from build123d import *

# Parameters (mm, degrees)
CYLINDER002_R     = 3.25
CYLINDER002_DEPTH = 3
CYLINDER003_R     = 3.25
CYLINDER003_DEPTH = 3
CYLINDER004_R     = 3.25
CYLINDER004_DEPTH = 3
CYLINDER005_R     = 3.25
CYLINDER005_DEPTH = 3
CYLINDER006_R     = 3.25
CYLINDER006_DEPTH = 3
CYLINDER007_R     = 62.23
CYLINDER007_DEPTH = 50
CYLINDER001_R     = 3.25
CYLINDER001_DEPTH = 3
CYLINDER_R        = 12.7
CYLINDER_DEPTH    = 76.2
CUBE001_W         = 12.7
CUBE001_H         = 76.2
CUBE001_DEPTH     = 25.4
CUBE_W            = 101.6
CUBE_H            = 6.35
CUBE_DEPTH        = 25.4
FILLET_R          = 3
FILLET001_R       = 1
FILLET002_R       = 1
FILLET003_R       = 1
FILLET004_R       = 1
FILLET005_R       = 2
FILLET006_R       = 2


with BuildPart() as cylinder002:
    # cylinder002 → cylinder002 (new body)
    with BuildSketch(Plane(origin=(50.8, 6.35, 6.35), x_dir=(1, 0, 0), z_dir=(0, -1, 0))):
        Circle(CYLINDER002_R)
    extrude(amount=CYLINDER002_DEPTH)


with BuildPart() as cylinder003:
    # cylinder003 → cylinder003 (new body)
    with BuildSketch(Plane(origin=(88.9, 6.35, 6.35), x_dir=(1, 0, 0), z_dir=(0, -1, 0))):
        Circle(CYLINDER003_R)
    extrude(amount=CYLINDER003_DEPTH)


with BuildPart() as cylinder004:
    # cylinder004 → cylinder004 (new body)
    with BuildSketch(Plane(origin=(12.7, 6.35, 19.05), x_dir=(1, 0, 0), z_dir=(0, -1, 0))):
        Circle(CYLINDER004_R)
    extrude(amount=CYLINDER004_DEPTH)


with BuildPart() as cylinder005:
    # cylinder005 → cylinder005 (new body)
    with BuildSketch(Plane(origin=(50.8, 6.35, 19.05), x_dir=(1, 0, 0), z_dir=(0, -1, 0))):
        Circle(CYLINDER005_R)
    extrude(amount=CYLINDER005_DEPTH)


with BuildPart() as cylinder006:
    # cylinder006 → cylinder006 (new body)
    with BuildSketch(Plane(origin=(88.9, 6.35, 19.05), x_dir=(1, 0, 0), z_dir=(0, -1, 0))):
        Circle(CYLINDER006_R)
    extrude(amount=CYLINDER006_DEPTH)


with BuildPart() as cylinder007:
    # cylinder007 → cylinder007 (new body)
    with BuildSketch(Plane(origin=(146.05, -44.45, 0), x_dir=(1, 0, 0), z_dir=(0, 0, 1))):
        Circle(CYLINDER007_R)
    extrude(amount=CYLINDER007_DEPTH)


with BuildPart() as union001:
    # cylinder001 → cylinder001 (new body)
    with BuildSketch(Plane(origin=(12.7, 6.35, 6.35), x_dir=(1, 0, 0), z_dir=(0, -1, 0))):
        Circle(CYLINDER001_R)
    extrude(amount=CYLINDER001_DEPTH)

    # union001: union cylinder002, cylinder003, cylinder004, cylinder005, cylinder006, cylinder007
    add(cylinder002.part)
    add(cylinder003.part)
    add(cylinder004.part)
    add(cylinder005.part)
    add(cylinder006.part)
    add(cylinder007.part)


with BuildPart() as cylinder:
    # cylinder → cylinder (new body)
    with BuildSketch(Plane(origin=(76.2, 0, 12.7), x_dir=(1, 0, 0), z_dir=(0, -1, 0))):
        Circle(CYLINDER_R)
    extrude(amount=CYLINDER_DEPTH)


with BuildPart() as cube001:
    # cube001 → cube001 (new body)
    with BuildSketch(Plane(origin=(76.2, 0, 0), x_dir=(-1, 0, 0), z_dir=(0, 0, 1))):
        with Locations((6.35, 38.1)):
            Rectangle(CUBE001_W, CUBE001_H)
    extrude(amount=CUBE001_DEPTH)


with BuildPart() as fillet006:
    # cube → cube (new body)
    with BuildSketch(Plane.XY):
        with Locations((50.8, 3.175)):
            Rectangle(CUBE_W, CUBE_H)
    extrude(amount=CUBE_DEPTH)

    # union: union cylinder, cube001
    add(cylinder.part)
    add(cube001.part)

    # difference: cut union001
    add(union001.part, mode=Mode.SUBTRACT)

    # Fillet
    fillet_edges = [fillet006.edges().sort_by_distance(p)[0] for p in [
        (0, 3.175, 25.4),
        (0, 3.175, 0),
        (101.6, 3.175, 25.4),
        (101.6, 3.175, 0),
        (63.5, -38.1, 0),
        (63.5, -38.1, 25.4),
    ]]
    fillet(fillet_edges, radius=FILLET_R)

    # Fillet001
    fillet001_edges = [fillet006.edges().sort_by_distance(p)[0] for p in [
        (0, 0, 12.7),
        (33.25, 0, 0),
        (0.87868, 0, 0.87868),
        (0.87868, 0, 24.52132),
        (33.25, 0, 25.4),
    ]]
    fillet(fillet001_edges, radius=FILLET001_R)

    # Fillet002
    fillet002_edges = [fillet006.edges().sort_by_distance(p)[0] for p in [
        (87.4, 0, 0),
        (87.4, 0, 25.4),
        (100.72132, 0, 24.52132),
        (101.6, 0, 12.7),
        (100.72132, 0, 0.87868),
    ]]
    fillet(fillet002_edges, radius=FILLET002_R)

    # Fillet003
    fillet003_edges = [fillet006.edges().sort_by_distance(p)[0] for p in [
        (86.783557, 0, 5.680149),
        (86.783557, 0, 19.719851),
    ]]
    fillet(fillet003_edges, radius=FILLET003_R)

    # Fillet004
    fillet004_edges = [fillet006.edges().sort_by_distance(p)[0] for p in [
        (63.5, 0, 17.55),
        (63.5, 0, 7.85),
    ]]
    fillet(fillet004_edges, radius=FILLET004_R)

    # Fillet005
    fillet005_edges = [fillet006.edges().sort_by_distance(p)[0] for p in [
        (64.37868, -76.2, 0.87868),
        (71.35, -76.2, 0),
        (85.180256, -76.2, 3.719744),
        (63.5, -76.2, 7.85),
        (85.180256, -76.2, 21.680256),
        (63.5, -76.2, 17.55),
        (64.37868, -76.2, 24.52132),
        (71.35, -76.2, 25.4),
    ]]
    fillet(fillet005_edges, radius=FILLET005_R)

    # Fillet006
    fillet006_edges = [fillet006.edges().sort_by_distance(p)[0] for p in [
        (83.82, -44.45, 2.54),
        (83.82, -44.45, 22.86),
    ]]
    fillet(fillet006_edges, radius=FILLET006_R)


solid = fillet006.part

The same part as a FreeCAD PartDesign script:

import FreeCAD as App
import Part
import Sketcher
Q = App.Units.Quantity


def edges_at(feature, points):
    """Names of the edges that pass closest to the given points."""
    edges = feature.Shape.Edges
    near = lambda p: min(range(len(edges)), key=lambda i: edges[i].distToShape(Part.Vertex(*p))[0])
    return sorted({f"Edge{near(p) + 1}" for p in points})


def add_polygon(sketch, points):
    """Adds a closed chain of lines whose ends are joined by coincident constraints."""
    first, n = sketch.GeometryCount, len(points)
    for a, b in zip(points, points[1:] + points[:1]):
        sketch.addGeometry(Part.LineSegment(App.Vector(*a, 0), App.Vector(*b, 0)), False)
    for i in range(n):
        sketch.addConstraint(Sketcher.Constraint("Coincident", first + i, 2, first + (i + 1) % n, 1))

doc = App.newDocument("Part")
body = doc.addObject("PartDesign::Body", "Body")

# Sketch on XZ plane
sketch1 = doc.addObject("Sketcher::SketchObject", "Sketch")
body.addObject(sketch1)
sketch1.AttachmentSupport = (doc.XZ_Plane, [""])
sketch1.MapMode = "FlatFace"
sketch1.AttachmentOffset = App.Placement(App.Vector(0, 0, -0.25 * 25.4), App.Rotation())
sketch1.addGeometry(Part.Circle(App.Vector(50.8, 6.3, 0), App.Vector(0, 0, 1), 3.2), False)
sketch1.addConstraint(Sketcher.Constraint("DistanceX", -1, 1, 0, 3, Q("2 in")))
sketch1.addConstraint(Sketcher.Constraint("Diameter", 0, 6.5))
sketch1.addConstraint(Sketcher.Constraint("DistanceY", -1, 1, 0, 3, Q("0.25 in")))
pad1 = doc.addObject("PartDesign::Pad", "Pad")
body.addObject(pad1)
pad1.Profile = sketch1
pad1.Length = 3
body2 = doc.addObject("PartDesign::Body", "Body001")

# Sketch on XZ plane
sketch2 = doc.addObject("Sketcher::SketchObject", "Sketch001")
body2.addObject(sketch2)
sketch2.AttachmentSupport = (doc.getObject("XZ_Plane001"), [""])
sketch2.MapMode = "FlatFace"
sketch2.AttachmentOffset = App.Placement(App.Vector(0, 0, -0.25 * 25.4), App.Rotation())
sketch2.addGeometry(Part.Circle(App.Vector(88.9, 6.3, 0), App.Vector(0, 0, 1), 3.2), False)
sketch2.addConstraint(Sketcher.Constraint("DistanceX", -1, 1, 0, 3, Q("3.5 in")))
sketch2.addConstraint(Sketcher.Constraint("Diameter", 0, 6.5))
sketch2.addConstraint(Sketcher.Constraint("DistanceY", -1, 1, 0, 3, Q("0.25 in")))
pad2 = doc.addObject("PartDesign::Pad", "Pad001")
body2.addObject(pad2)
pad2.Profile = sketch2
pad2.Length = 3
body3 = doc.addObject("PartDesign::Body", "Body002")

# Sketch on XZ plane
sketch3 = doc.addObject("Sketcher::SketchObject", "Sketch002")
body3.addObject(sketch3)
sketch3.AttachmentSupport = (doc.getObject("XZ_Plane002"), [""])
sketch3.MapMode = "FlatFace"
sketch3.AttachmentOffset = App.Placement(App.Vector(0, 0, -0.25 * 25.4), App.Rotation())
sketch3.addGeometry(Part.Circle(App.Vector(12.7, 19.1, 0), App.Vector(0, 0, 1), 3.2), False)
sketch3.addConstraint(Sketcher.Constraint("DistanceX", -1, 1, 0, 3, Q("0.5 in")))
sketch3.addConstraint(Sketcher.Constraint("Diameter", 0, 6.5))
sketch3.addConstraint(Sketcher.Constraint("DistanceY", -1, 1, 0, 3, Q("0.75 in")))
pad3 = doc.addObject("PartDesign::Pad", "Pad002")
body3.addObject(pad3)
pad3.Profile = sketch3
pad3.Length = 3
body4 = doc.addObject("PartDesign::Body", "Body003")

# Sketch on XZ plane
sketch4 = doc.addObject("Sketcher::SketchObject", "Sketch003")
body4.addObject(sketch4)
sketch4.AttachmentSupport = (doc.getObject("XZ_Plane003"), [""])
sketch4.MapMode = "FlatFace"
sketch4.AttachmentOffset = App.Placement(App.Vector(0, 0, -0.25 * 25.4), App.Rotation())
sketch4.addGeometry(Part.Circle(App.Vector(50.8, 19.1, 0), App.Vector(0, 0, 1), 3.2), False)
sketch4.addConstraint(Sketcher.Constraint("DistanceX", -1, 1, 0, 3, Q("2 in")))
sketch4.addConstraint(Sketcher.Constraint("Diameter", 0, 6.5))
sketch4.addConstraint(Sketcher.Constraint("DistanceY", -1, 1, 0, 3, Q("0.75 in")))
pad4 = doc.addObject("PartDesign::Pad", "Pad003")
body4.addObject(pad4)
pad4.Profile = sketch4
pad4.Length = 3
body5 = doc.addObject("PartDesign::Body", "Body004")

# Sketch on XZ plane
sketch5 = doc.addObject("Sketcher::SketchObject", "Sketch004")
body5.addObject(sketch5)
sketch5.AttachmentSupport = (doc.getObject("XZ_Plane004"), [""])
sketch5.MapMode = "FlatFace"
sketch5.AttachmentOffset = App.Placement(App.Vector(0, 0, -0.25 * 25.4), App.Rotation())
sketch5.addGeometry(Part.Circle(App.Vector(88.9, 19.1, 0), App.Vector(0, 0, 1), 3.2), False)
sketch5.addConstraint(Sketcher.Constraint("DistanceX", -1, 1, 0, 3, Q("3.5 in")))
sketch5.addConstraint(Sketcher.Constraint("Diameter", 0, 6.5))
sketch5.addConstraint(Sketcher.Constraint("DistanceY", -1, 1, 0, 3, Q("0.75 in")))
pad5 = doc.addObject("PartDesign::Pad", "Pad004")
body5.addObject(pad5)
pad5.Profile = sketch5
pad5.Length = 3
body6 = doc.addObject("PartDesign::Body", "Body005")

# Sketch on XY plane
sketch6 = doc.addObject("Sketcher::SketchObject", "Sketch005")
body6.addObject(sketch6)
sketch6.AttachmentSupport = (doc.getObject("XY_Plane005"), [""])
sketch6.MapMode = "FlatFace"
sketch6.addGeometry(Part.Circle(App.Vector(146, -44, 0), App.Vector(0, 0, 1), 62), False)
sketch6.addConstraint(Sketcher.Constraint("Diameter", 0, Q("4.9 in")))
sketch6.addConstraint(Sketcher.Constraint("DistanceX", -1, 1, 0, 3, Q("5.75 in")))
sketch6.addConstraint(Sketcher.Constraint("DistanceY", 0, 3, -1, 1, Q("1.75 in")))
pad6 = doc.addObject("PartDesign::Pad", "Pad005")
body6.addObject(pad6)
pad6.Profile = sketch6
pad6.Length = 50
body7 = doc.addObject("PartDesign::Body", "Body006")
body7.AllowCompound = True

# Sketch on XZ plane
sketch7 = doc.addObject("Sketcher::SketchObject", "Sketch006")
body7.addObject(sketch7)
sketch7.AttachmentSupport = (doc.getObject("XZ_Plane006"), [""])
sketch7.MapMode = "FlatFace"
sketch7.AttachmentOffset = App.Placement(App.Vector(0, 0, -0.25 * 25.4), App.Rotation())
sketch7.addGeometry(Part.Circle(App.Vector(12.7, 6.3, 0), App.Vector(0, 0, 1), 3.2), False)
sketch7.addConstraint(Sketcher.Constraint("DistanceX", -1, 1, 0, 3, Q("0.5 in")))
sketch7.addConstraint(Sketcher.Constraint("Diameter", 0, 6.5))
sketch7.addConstraint(Sketcher.Constraint("DistanceY", -1, 1, 0, 3, Q("0.25 in")))
pad7 = doc.addObject("PartDesign::Pad", "Pad006")
body7.addObject(pad7)
pad7.Profile = sketch7
pad7.Length = 3
doc.recompute()

boolean = doc.addObject("PartDesign::Boolean", "Boolean")
body7.addObject(boolean)
boolean.Type = "Fuse"
boolean.addObjects([body])
doc.recompute()

boolean2 = doc.addObject("PartDesign::Boolean", "Boolean001")
body7.addObject(boolean2)
boolean2.Type = "Fuse"
boolean2.addObjects([body2])
doc.recompute()

boolean3 = doc.addObject("PartDesign::Boolean", "Boolean002")
body7.addObject(boolean3)
boolean3.Type = "Fuse"
boolean3.addObjects([body3])
doc.recompute()

boolean4 = doc.addObject("PartDesign::Boolean", "Boolean003")
body7.addObject(boolean4)
boolean4.Type = "Fuse"
boolean4.addObjects([body4])
doc.recompute()

boolean5 = doc.addObject("PartDesign::Boolean", "Boolean004")
body7.addObject(boolean5)
boolean5.Type = "Fuse"
boolean5.addObjects([body5])
doc.recompute()

boolean6 = doc.addObject("PartDesign::Boolean", "Boolean005")
body7.addObject(boolean6)
boolean6.Type = "Fuse"
boolean6.addObjects([body6])
body8 = doc.addObject("PartDesign::Body", "Body007")

# Sketch on XZ plane
sketch8 = doc.addObject("Sketcher::SketchObject", "Sketch007")
body8.addObject(sketch8)
sketch8.AttachmentSupport = (doc.getObject("XZ_Plane007"), [""])
sketch8.MapMode = "FlatFace"
sketch8.addGeometry(Part.Circle(App.Vector(76, 13, 0), App.Vector(0, 0, 1), 13), False)
sketch8.addConstraint(Sketcher.Constraint("Diameter", 0, Q("1 in")))
sketch8.addConstraint(Sketcher.Constraint("DistanceX", -1, 1, 0, 3, Q("3 in")))
sketch8.addConstraint(Sketcher.Constraint("DistanceY", -1, 1, 0, 3, Q("0.5 in")))
pad8 = doc.addObject("PartDesign::Pad", "Pad007")
body8.addObject(pad8)
pad8.Profile = sketch8
pad8.Length = Q("3 in")
body9 = doc.addObject("PartDesign::Body", "Body008")

# Sketch on XY plane
sketch9 = doc.addObject("Sketcher::SketchObject", "Sketch008")
body9.addObject(sketch9)
sketch9.AttachmentSupport = (doc.getObject("XY_Plane008"), [""])
sketch9.MapMode = "FlatFace"
add_polygon(sketch9, [(76, -76), (76, 0), (64, 0), (64, -76)])  # lines 0-3
sketch9.addConstraint(Sketcher.Constraint("Vertical", 0))
sketch9.addConstraint(Sketcher.Constraint("Horizontal", 1))
sketch9.addConstraint(Sketcher.Constraint("Vertical", 2))
sketch9.addConstraint(Sketcher.Constraint("Horizontal", 3))
sketch9.addConstraint(Sketcher.Constraint("PointOnObject", 0, 2, -1))
sketch9.addConstraint(Sketcher.Constraint("DistanceY", 0, 1, 0, 2, Q("3 in")))
sketch9.addConstraint(Sketcher.Constraint("DistanceX", 1, 2, 1, 1, Q("0.5 in")))
sketch9.addConstraint(Sketcher.Constraint("DistanceX", -1, 1, 0, 2, Q("3 in")))
pad9 = doc.addObject("PartDesign::Pad", "Pad008")
body9.addObject(pad9)
pad9.Profile = sketch9
pad9.Length = Q("1 in")
body10 = doc.addObject("PartDesign::Body", "Body009")

# Sketch on XY plane
sketch10 = doc.addObject("Sketcher::SketchObject", "Sketch009")
body10.addObject(sketch10)
sketch10.AttachmentSupport = (doc.getObject("XY_Plane009"), [""])
sketch10.MapMode = "FlatFace"
add_polygon(sketch10, [(0, 6), (0, 0), (102, 0), (102, 6)])  # lines 0-3
sketch10.addConstraint(Sketcher.Constraint("Vertical", 0))
sketch10.addConstraint(Sketcher.Constraint("Horizontal", 1))
sketch10.addConstraint(Sketcher.Constraint("Vertical", 2))
sketch10.addConstraint(Sketcher.Constraint("Horizontal", 3))
sketch10.addConstraint(Sketcher.Constraint("Coincident", 0, 2, -1, 1))
sketch10.addConstraint(Sketcher.Constraint("DistanceX", 1, 1, 1, 2, Q("4 in")))
sketch10.addConstraint(Sketcher.Constraint("DistanceY", 0, 2, 0, 1, Q("0.25 in")))
pad10 = doc.addObject("PartDesign::Pad", "Pad009")
body10.addObject(pad10)
pad10.Profile = sketch10
pad10.Length = Q("1 in")
doc.recompute()

boolean7 = doc.addObject("PartDesign::Boolean", "Boolean006")
body10.addObject(boolean7)
boolean7.Type = "Fuse"
boolean7.addObjects([body8])
doc.recompute()

boolean8 = doc.addObject("PartDesign::Boolean", "Boolean007")
body10.addObject(boolean8)
boolean8.Type = "Fuse"
boolean8.addObjects([body9])
doc.recompute()

boolean9 = doc.addObject("PartDesign::Boolean", "Boolean008")
body10.addObject(boolean9)
boolean9.Type = "Cut"
boolean9.addObjects([body7])
doc.recompute()

fillet = doc.addObject("PartDesign::Fillet", "Fillet")
body10.addObject(fillet)
fillet.Base = (boolean9, edges_at(boolean9, [
    (0, 3.175, 25.4),
    (0, 3.175, 0),
    (101.6, 3.175, 25.4),
    (101.6, 3.175, 0),
    (63.5, -38.1, 0),
    (63.5, -38.1, 25.4),
]))
fillet.Radius = 3
doc.recompute()

fillet2 = doc.addObject("PartDesign::Fillet", "Fillet001")
body10.addObject(fillet2)
fillet2.Base = (fillet, edges_at(fillet, [
    (0, 0, 12.7),
    (34.75, 0, 0),
    (0.879, 0, 0.879),
    (0.879, 0, 24.521),
    (34.75, 0, 25.4),
]))
fillet2.Radius = 1
doc.recompute()

fillet3 = doc.addObject("PartDesign::Fillet", "Fillet002")
body10.addObject(fillet3)
fillet3.Base = (fillet2, edges_at(fillet2, [
    (87.4, 0, 0),
    (87.4, 0, 25.4),
    (100.721, 0, 24.521),
    (101.6, 0, 12.7),
    (100.721, 0, 0.879),
]))
fillet3.Radius = 1
doc.recompute()

fillet4 = doc.addObject("PartDesign::Fillet", "Fillet003")
body10.addObject(fillet4)
fillet4.Base = (fillet3, edges_at(fillet3, [(88.9, 0, 12.7), (88.9, 0, 12.7)]))
fillet4.Radius = 1
doc.recompute()

fillet5 = doc.addObject("PartDesign::Fillet", "Fillet004")
body10.addObject(fillet5)
fillet5.Base = (fillet4, edges_at(fillet4, [(63.5, 0, 12.7), (63.5, 0, 12.7)]))
fillet5.Radius = 1
doc.recompute()

fillet6 = doc.addObject("PartDesign::Fillet", "Fillet005")
body10.addObject(fillet6)
fillet6.Base = (fillet5, edges_at(fillet5, [
    (64.379, -76.2, 0.879),
    (71.35, -76.2, 0),
    (88.9, -76.2, 12.7),
    (63.5, -76.2, 12.7),
    (88.9, -76.2, 12.7),
    (63.5, -76.2, 12.7),
    (64.379, -76.2, 24.521),
    (71.35, -76.2, 25.4),
]))
fillet6.Radius = 2
doc.recompute()

fillet7 = doc.addObject("PartDesign::Fillet", "Fillet006")
body10.addObject(fillet7)
fillet7.Base = (fillet6, edges_at(fillet6, [(88.9, -19.824, 12.7), (88.9, -19.824, 12.7)]))
fillet7.Radius = 2

doc.recompute()
